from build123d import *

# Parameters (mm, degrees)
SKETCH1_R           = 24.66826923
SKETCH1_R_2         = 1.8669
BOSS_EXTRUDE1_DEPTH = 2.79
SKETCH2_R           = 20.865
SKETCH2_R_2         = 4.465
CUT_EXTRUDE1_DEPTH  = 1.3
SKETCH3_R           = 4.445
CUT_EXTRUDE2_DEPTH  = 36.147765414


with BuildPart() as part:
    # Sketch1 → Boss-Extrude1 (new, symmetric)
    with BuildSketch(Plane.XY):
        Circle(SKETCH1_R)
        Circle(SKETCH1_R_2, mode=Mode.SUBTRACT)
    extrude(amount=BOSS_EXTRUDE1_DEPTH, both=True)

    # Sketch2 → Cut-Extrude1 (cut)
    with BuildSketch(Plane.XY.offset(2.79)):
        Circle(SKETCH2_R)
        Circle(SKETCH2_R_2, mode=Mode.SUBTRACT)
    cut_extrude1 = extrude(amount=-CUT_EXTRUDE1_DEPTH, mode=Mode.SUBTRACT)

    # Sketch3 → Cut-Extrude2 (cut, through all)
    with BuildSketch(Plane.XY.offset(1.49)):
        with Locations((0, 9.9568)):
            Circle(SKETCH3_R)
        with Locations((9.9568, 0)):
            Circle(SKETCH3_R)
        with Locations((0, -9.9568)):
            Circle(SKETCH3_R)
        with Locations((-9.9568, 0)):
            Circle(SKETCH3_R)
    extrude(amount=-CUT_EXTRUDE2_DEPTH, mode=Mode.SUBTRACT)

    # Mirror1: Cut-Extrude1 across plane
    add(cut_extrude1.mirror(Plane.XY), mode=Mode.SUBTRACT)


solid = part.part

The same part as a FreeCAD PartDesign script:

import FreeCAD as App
import Part
import Sketcher

V = App.Vector
Q = App.Units.Quantity

doc = App.newDocument("Part")
body = doc.addObject("PartDesign::Body", "Body")

sketch1 = body.newObject("Sketcher::SketchObject", "Sketch")
sketch1.AttachmentSupport = (doc.getObject("XY_Plane"), [""])
sketch1.MapMode = "FlatFace"
sketch1.addGeometry(Part.Circle(V(0, 0, 0), V(0, 0, 1), 24.668269), False)
sketch1.addGeometry(Part.Circle(V(0, 0, 0), V(0, 0, 1), 1.8669), False)
sketch1.addConstraint(Sketcher.Constraint("Coincident", 0, 3, -1, 1))
sketch1.addConstraint(Sketcher.Constraint("Coincident", 1, 3, -1, 1))
sketch1.addConstraint(Sketcher.Constraint("Diameter", 1, Q("0.147 in")))
sketch1.addConstraint(Sketcher.Constraint("Diameter", 0, Q("49.336538 mm")))
pad1 = body.newObject("PartDesign::Pad", "Pad")
pad1.Profile = sketch1
pad1.Length = 5.58
pad1.Midplane = True

sketch2 = body.newObject("Sketcher::SketchObject", "Sketch001")
sketch2.AttachmentSupport = (doc.getObject("XY_Plane"), [""])
sketch2.MapMode = "FlatFace"
sketch2.AttachmentOffset = App.Placement(V(0, 0, 2.79), App.Rotation())
sketch2.addGeometry(Part.Circle(V(0, 0, 0), V(0, 0, 1), 20.865), False)
sketch2.addGeometry(Part.Circle(V(0, 0, 0), V(0, 0, 1), 4.465), False)
sketch2.addConstraint(Sketcher.Constraint("Coincident", 0, 3, -1, 1))
sketch2.addConstraint(Sketcher.Constraint("Coincident", 1, 3, -1, 1))
sketch2.addConstraint(Sketcher.Constraint("Diameter", 0, Q("41.73 mm")))
sketch2.addConstraint(Sketcher.Constraint("Diameter", 1, Q("8.93 mm")))
pocket1 = body.newObject("PartDesign::Pocket", "Pocket")
pocket1.Profile = sketch2
pocket1.Length = 1.3

sketch3 = body.newObject("Sketcher::SketchObject", "Sketch002")
sketch3.AttachmentSupport = (doc.getObject("XY_Plane"), [""])
sketch3.MapMode = "FlatFace"
sketch3.AttachmentOffset = App.Placement(V(0, 0, 1.49), App.Rotation())
sketch3.addGeometry(Part.Circle(V(0, 9.9568, 0), V(0, 0, 1), 4.445), False)
sketch3.addGeometry(Part.Circle(V(9.9568, 0, 0), V(0, 0, 1), 4.445), False)
sketch3.addGeometry(Part.Circle(V(0, -9.9568, 0), V(0, 0, 1), 4.445), False)
sketch3.addGeometry(Part.Circle(V(-9.9568, 0, 0), V(0, 0, 1), 4.445), False)
sketch3.addConstraint(Sketcher.Constraint("Equal", 0, 1))
sketch3.addConstraint(Sketcher.Constraint("Equal", 1, 2))
sketch3.addConstraint(Sketcher.Constraint("Equal", 2, 3))
sketch3.addConstraint(Sketcher.Constraint("Symmetric", 0, 3, 2, 3, -1, 1))
sketch3.addConstraint(Sketcher.Constraint("Symmetric", 1, 3, 3, 3, -1, 1))
sketch3.addConstraint(Sketcher.Constraint("PointOnObject", 0, 3, -2))
sketch3.addConstraint(Sketcher.Constraint("PointOnObject", 1, 3, -1))
sketch3.addConstraint(Sketcher.Constraint("Diameter", 0, Q("0.35 in")))
sketch3.addConstraint(Sketcher.Constraint("DistanceY", -1, 1, 0, 3, Q("0.392 in")))
sketch3.addConstraint(Sketcher.Constraint("DistanceX", -1, 1, 1, 3, Q("0.392 in")))
pocket2 = body.newObject("PartDesign::Pocket", "Pocket001")
pocket2.Profile = sketch3
pocket2.Type = "ThroughAll"
doc.recompute()

mirrored = body.newObject("PartDesign::Mirrored", "Mirrored")
mirrored.Originals = [pocket1]
mirrored.MirrorPlane = (doc.getObject("XY_Plane"), [""])
body.Tip = mirrored

doc.recompute()
